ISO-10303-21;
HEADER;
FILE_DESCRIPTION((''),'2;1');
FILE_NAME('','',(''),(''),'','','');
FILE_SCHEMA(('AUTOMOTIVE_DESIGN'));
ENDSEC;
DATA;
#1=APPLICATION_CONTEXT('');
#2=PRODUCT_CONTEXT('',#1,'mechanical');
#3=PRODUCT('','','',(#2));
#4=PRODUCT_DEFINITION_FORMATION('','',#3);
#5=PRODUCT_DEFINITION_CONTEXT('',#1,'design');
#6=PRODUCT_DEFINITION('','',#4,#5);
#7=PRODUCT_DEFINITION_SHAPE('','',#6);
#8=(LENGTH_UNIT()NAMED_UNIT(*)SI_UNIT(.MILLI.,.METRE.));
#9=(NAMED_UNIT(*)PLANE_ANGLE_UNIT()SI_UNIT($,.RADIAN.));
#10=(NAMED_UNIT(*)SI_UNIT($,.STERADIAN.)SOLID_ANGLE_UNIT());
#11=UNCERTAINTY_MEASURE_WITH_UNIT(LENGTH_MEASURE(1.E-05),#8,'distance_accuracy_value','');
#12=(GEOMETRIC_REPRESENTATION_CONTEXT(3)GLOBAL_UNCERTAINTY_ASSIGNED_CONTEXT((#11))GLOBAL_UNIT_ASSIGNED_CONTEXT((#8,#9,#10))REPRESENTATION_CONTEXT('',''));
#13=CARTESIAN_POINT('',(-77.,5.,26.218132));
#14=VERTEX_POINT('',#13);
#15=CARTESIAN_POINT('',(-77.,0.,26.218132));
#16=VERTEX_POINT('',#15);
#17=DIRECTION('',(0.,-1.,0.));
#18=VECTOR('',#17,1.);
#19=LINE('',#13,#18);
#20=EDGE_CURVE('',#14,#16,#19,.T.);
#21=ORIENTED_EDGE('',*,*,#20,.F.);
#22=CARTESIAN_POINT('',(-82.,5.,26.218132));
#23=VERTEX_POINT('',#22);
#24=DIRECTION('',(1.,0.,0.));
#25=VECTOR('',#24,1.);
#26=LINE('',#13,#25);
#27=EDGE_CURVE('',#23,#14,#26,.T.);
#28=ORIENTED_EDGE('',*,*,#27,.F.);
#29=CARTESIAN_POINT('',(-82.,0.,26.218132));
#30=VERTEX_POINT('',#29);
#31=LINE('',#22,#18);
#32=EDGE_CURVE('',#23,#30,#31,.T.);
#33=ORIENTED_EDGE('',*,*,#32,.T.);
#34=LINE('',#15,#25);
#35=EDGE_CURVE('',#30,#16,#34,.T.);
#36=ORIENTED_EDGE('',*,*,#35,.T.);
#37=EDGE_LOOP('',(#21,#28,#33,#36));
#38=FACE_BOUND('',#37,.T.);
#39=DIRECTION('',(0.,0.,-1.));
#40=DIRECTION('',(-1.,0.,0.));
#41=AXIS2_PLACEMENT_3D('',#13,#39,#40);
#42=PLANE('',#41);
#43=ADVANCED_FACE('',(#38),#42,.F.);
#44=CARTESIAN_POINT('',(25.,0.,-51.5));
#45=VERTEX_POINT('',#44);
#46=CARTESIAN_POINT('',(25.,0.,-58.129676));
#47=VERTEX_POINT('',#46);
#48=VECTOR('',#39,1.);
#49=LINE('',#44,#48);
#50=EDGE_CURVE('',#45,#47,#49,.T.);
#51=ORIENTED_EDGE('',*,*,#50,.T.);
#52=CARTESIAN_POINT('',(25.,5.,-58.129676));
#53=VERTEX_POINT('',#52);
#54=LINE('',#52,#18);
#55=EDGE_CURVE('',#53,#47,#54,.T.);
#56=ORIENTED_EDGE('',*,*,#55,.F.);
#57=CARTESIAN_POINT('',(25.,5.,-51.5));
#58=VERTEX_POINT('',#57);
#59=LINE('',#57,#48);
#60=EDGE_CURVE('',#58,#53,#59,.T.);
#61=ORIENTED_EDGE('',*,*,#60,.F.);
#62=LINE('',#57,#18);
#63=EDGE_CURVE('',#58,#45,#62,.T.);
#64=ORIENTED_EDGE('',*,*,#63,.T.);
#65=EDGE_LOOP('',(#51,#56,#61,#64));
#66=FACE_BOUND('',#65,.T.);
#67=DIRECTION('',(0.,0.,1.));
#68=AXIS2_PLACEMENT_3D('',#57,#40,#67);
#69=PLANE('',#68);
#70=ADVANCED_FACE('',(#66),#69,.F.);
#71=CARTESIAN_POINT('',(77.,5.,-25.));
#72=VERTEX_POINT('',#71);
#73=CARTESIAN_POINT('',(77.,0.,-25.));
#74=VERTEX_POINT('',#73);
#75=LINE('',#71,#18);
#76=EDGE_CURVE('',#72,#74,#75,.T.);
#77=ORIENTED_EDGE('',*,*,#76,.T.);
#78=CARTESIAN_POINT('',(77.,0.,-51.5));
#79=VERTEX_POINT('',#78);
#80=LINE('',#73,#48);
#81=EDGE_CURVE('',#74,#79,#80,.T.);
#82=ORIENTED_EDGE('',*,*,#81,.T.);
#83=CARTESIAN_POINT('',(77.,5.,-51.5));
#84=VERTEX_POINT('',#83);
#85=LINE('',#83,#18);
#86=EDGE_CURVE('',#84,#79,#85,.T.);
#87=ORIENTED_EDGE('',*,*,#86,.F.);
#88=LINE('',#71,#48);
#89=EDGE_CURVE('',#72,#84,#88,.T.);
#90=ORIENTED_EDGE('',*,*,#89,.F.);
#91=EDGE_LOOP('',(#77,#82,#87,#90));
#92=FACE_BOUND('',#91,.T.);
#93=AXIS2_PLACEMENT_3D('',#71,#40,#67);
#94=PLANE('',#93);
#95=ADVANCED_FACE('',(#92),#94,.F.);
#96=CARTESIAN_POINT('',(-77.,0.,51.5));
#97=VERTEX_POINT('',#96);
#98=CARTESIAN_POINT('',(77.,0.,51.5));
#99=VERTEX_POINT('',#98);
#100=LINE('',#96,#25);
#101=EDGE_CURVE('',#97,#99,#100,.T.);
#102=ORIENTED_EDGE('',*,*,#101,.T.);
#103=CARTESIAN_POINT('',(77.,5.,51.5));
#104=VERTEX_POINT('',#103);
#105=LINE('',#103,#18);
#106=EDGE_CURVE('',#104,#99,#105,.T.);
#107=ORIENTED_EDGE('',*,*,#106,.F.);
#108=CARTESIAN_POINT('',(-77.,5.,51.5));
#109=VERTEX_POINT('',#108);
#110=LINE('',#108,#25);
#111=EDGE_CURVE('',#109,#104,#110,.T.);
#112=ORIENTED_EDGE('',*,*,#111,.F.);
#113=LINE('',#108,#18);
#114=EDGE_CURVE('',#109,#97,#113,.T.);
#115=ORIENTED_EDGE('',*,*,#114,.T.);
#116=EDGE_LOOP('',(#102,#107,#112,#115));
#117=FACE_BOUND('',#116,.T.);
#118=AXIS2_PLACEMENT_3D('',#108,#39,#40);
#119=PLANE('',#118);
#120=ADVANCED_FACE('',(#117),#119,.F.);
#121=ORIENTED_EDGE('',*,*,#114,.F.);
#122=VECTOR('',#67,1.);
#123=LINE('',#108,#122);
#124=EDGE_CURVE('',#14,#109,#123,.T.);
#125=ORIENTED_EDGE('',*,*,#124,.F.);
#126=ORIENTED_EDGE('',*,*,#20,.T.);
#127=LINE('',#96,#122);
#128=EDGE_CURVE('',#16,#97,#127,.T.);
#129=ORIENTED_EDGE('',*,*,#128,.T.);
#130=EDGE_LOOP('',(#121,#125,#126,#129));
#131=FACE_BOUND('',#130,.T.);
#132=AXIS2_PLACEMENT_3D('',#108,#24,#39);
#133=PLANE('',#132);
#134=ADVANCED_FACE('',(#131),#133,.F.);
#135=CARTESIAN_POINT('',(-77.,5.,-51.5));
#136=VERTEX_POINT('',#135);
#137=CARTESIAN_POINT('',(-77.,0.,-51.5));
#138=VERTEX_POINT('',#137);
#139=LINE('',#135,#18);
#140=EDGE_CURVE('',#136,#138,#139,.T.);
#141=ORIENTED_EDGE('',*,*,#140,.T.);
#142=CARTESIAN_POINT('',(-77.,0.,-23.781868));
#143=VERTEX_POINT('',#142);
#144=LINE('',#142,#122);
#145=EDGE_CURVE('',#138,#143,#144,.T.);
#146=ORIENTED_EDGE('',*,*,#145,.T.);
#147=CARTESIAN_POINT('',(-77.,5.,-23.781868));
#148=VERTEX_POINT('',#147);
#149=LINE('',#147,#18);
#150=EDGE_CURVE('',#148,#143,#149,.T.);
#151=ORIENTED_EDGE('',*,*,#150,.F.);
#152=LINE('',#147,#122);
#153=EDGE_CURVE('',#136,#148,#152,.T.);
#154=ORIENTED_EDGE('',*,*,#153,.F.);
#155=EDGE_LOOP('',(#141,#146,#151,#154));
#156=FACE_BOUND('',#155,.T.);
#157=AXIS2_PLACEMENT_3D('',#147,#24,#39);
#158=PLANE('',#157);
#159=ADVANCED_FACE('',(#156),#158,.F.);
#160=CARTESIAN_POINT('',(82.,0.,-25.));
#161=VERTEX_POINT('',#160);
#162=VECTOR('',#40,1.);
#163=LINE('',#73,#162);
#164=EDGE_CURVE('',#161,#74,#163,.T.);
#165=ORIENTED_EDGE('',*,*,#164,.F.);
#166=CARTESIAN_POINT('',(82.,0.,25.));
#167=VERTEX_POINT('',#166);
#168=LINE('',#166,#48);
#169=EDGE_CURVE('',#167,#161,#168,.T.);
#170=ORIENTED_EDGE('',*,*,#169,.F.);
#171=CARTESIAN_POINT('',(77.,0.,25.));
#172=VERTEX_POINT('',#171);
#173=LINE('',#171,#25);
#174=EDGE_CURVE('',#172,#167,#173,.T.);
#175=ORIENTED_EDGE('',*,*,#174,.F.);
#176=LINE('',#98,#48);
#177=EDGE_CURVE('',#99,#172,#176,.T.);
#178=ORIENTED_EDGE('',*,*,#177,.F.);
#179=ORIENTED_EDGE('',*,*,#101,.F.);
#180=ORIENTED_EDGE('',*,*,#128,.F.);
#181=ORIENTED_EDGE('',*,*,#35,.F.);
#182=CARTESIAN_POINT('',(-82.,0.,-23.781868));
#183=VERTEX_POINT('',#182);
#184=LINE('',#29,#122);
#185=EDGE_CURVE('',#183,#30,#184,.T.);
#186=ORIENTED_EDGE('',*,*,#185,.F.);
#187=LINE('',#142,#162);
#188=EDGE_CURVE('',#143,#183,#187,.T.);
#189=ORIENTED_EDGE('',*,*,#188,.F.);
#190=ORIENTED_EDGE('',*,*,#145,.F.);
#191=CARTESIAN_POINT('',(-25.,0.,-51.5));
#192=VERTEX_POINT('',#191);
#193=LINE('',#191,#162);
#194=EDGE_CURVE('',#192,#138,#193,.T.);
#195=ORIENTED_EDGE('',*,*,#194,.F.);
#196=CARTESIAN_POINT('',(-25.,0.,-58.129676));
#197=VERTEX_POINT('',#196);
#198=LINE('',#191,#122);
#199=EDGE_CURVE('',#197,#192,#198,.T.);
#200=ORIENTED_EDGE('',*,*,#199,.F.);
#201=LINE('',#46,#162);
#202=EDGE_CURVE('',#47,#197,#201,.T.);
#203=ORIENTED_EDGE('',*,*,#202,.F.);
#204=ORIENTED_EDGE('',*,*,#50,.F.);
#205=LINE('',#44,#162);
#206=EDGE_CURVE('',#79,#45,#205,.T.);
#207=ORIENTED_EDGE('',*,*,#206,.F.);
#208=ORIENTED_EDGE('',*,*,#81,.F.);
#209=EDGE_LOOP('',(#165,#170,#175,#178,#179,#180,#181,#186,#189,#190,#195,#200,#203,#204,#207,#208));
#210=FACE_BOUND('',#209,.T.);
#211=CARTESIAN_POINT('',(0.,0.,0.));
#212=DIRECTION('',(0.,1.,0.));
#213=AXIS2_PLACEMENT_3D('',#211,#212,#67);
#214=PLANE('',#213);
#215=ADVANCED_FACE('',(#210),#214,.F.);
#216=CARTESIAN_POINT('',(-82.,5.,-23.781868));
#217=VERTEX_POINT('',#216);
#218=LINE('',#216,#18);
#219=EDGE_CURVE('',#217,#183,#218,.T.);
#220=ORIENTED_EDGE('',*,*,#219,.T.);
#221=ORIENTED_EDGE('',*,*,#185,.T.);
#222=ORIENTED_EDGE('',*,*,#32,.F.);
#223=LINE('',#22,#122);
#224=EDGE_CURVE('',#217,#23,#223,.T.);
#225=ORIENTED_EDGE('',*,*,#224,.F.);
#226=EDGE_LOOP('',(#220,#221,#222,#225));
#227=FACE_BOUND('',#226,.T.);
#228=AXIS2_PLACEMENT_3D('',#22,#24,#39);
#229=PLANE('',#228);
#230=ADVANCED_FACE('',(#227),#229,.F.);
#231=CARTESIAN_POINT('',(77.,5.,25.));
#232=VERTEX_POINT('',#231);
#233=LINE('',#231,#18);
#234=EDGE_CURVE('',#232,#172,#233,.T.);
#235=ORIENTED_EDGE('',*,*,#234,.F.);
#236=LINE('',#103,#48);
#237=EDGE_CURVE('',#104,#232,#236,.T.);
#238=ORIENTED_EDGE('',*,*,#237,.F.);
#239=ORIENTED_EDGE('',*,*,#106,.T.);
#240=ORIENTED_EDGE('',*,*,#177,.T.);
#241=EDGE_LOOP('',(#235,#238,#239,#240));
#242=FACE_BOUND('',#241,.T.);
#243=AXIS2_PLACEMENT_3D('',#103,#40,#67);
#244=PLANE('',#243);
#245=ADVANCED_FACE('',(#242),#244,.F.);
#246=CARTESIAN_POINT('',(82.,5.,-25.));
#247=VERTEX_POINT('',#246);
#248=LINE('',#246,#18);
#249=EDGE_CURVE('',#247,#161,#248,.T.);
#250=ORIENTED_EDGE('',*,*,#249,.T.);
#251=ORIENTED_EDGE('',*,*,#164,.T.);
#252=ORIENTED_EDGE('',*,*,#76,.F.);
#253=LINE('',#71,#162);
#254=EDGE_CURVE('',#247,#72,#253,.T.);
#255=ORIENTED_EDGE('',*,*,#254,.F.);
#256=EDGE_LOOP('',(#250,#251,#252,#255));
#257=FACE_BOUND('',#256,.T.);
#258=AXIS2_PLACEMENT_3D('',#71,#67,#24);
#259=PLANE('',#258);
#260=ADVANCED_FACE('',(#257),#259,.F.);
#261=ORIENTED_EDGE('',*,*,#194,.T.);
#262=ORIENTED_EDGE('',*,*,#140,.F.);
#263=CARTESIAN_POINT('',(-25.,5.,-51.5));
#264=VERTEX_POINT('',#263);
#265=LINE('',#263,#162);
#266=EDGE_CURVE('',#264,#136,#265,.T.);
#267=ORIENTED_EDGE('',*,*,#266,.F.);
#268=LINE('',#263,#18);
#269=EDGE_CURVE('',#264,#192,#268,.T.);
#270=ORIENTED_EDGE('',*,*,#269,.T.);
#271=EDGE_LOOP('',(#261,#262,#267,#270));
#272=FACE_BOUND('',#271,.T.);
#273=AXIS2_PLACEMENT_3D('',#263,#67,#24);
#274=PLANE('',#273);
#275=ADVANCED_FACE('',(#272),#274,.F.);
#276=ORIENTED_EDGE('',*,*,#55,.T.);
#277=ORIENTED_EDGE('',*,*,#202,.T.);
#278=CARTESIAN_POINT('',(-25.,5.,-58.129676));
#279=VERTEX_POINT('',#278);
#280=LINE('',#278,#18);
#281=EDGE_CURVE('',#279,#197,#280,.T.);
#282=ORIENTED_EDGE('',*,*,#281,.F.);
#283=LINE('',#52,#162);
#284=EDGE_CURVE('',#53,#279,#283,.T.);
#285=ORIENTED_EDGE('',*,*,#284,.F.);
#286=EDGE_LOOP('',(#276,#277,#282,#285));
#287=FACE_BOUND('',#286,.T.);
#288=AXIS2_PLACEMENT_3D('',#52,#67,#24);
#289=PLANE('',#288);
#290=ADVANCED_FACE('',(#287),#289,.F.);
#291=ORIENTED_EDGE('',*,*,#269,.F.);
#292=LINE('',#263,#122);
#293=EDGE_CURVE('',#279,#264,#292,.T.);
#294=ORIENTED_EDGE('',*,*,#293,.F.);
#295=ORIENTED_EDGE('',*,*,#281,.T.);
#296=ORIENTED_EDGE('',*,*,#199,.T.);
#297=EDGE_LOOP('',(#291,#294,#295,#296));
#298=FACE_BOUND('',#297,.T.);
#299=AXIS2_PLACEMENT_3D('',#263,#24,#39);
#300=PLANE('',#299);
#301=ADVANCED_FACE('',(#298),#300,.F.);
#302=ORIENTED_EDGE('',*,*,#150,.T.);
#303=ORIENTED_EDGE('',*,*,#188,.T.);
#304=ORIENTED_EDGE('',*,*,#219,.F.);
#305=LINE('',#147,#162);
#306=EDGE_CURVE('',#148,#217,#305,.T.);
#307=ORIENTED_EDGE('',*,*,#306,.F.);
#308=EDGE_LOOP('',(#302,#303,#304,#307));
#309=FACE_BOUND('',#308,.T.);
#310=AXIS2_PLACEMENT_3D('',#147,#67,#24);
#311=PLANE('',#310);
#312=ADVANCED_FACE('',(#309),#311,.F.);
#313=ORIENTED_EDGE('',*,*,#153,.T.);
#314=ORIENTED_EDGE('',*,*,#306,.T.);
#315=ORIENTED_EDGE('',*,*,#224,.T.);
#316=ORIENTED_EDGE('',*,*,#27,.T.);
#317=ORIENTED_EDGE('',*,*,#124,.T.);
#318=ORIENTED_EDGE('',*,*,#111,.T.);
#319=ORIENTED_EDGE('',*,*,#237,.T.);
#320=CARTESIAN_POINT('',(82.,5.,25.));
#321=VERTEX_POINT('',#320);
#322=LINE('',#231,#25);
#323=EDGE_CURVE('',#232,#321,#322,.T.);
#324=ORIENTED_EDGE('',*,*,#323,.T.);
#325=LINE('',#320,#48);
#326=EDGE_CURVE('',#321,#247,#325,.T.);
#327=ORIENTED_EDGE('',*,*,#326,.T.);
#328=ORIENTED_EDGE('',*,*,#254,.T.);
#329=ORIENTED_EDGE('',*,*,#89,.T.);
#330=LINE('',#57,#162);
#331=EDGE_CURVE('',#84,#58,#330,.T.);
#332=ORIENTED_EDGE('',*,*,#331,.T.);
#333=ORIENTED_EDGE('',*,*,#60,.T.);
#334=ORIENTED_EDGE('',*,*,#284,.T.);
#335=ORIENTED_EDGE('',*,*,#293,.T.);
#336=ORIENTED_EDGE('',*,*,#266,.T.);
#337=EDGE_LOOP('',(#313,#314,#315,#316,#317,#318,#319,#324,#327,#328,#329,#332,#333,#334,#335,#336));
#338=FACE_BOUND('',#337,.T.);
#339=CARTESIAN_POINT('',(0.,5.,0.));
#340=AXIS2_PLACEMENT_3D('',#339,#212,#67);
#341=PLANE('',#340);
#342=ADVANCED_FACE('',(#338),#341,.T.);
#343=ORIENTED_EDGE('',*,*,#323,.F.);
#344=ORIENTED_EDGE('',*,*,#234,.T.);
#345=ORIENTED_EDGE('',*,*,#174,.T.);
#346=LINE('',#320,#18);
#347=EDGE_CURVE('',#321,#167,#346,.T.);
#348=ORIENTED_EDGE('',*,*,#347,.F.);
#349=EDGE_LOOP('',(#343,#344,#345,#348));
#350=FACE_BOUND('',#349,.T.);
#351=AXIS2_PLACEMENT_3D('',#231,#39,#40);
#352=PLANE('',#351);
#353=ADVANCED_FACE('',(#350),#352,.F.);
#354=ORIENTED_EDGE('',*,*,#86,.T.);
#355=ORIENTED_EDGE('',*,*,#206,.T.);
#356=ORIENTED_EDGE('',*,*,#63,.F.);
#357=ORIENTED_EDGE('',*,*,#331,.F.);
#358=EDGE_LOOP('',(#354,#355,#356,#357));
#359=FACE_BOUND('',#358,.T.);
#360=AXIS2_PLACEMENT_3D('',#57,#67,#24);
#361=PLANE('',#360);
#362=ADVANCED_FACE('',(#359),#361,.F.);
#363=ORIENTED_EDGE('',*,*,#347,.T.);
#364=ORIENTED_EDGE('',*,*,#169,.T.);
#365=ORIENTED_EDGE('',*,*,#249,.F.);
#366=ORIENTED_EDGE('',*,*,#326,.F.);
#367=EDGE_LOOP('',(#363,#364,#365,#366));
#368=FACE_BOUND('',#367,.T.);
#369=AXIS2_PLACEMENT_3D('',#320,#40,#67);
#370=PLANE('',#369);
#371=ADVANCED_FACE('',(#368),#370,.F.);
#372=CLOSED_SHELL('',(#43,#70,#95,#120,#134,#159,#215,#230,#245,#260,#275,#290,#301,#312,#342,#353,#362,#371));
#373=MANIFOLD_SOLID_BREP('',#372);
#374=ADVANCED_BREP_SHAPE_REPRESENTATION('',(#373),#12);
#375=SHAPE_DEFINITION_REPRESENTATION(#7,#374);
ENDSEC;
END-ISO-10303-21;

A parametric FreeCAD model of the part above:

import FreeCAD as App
import Part
import Sketcher

V = App.Vector

doc = App.newDocument("Part")
body = doc.addObject("PartDesign::Body", "Body")

# Sketch on XZ plane
sketch1 = body.newObject("Sketcher::SketchObject", "Sketch")
sketch1.AttachmentSupport = (doc.getObject("XZ_Plane"), [""])
sketch1.MapMode = "FlatFace"
sketch1.addGeometry(Part.LineSegment(V(77, 52, 0), V(77, 25, 0)), False)
sketch1.addGeometry(Part.LineSegment(V(77, 25, 0), V(82, 25, 0)), False)
sketch1.addGeometry(Part.LineSegment(V(82, 25, 0), V(82, -25, 0)), False)
sketch1.addGeometry(Part.LineSegment(V(82, -25, 0), V(77, -25, 0)), False)
sketch1.addGeometry(Part.LineSegment(V(77, -25, 0), V(77, -52, 0)), False)
sketch1.addGeometry(Part.LineSegment(V(77, -52, 0), V(25, -52, 0)), False)
sketch1.addGeometry(Part.LineSegment(V(25, -52, 0), V(25, -58, 0)), False)
sketch1.addGeometry(Part.LineSegment(V(25, -58, 0), V(-25, -58, 0)), False)
sketch1.addGeometry(Part.LineSegment(V(-25, -58, 0), V(-25, -52, 0)), False)
sketch1.addGeometry(Part.LineSegment(V(-25, -52, 0), V(-77, -52, 0)), False)
sketch1.addGeometry(Part.LineSegment(V(-77, -52, 0), V(-77, -24, 0)), False)
sketch1.addGeometry(Part.LineSegment(V(-77, -24, 0), V(-82, -24, 0)), False)
sketch1.addGeometry(Part.LineSegment(V(-82, -24, 0), V(-82, 26, 0)), False)
sketch1.addGeometry(Part.LineSegment(V(-82, 26, 0), V(-77, 26, 0)), False)
sketch1.addGeometry(Part.LineSegment(V(-77, 26, 0), V(-77, 52, 0)), False)
sketch1.addGeometry(Part.LineSegment(V(-77, 52, 0), V(77, 52, 0)), False)
sketch1.addConstraint(Sketcher.Constraint("Coincident", 0, 2, 1, 1))
sketch1.addConstraint(Sketcher.Constraint("Coincident", 1, 2, 2, 1))
sketch1.addConstraint(Sketcher.Constraint("Coincident", 2, 2, 3, 1))
sketch1.addConstraint(Sketcher.Constraint("Coincident", 3, 2, 4, 1))
sketch1.addConstraint(Sketcher.Constraint("Coincident", 4, 2, 5, 1))
sketch1.addConstraint(Sketcher.Constraint("Coincident", 5, 2, 6, 1))
sketch1.addConstraint(Sketcher.Constraint("Coincident", 6, 2, 7, 1))
sketch1.addConstraint(Sketcher.Constraint("Coincident", 7, 2, 8, 1))
sketch1.addConstraint(Sketcher.Constraint("Coincident", 8, 2, 9, 1))
sketch1.addConstraint(Sketcher.Constraint("Coincident", 9, 2, 10, 1))
sketch1.addConstraint(Sketcher.Constraint("Coincident", 10, 2, 11, 1))
sketch1.addConstraint(Sketcher.Constraint("Coincident", 11, 2, 12, 1))
sketch1.addConstraint(Sketcher.Constraint("Coincident", 12, 2, 13, 1))
sketch1.addConstraint(Sketcher.Constraint("Coincident", 13, 2, 14, 1))
sketch1.addConstraint(Sketcher.Constraint("Coincident", 14, 2, 15, 1))
sketch1.addConstraint(Sketcher.Constraint("Coincident", 15, 2, 0, 1))
sketch1.addConstraint(Sketcher.Constraint("Vertical", 0))
sketch1.addConstraint(Sketcher.Constraint("Horizontal", 1))
sketch1.addConstraint(Sketcher.Constraint("Vertical", 2))
sketch1.addConstraint(Sketcher.Constraint("Horizontal", 3))
sketch1.addConstraint(Sketcher.Constraint("Vertical", 4))
sketch1.addConstraint(Sketcher.Constraint("Horizontal", 5))
sketch1.addConstraint(Sketcher.Constraint("Vertical", 6))
sketch1.addConstraint(Sketcher.Constraint("Horizontal", 7))
sketch1.addConstraint(Sketcher.Constraint("Vertical", 8))
sketch1.addConstraint(Sketcher.Constraint("Horizontal", 9))
sketch1.addConstraint(Sketcher.Constraint("Vertical", 10))
sketch1.addConstraint(Sketcher.Constraint("Horizontal", 11))
sketch1.addConstraint(Sketcher.Constraint("Vertical", 12))
sketch1.addConstraint(Sketcher.Constraint("Horizontal", 13))
sketch1.addConstraint(Sketcher.Constraint("Vertical", 14))
sketch1.addConstraint(Sketcher.Constraint("Horizontal", 15))
sketch1.addConstraint(Sketcher.Constraint("Symmetric", 4, 2, 14, 2, -1, 1))
sketch1.addConstraint(Sketcher.Constraint("Symmetric", 9, 2, 15, 2, -1, 1))
sketch1.addConstraint(Sketcher.Constraint("Symmetric", 0, 2, 3, 2, -1))
sketch1.addConstraint(Sketcher.Constraint("Equal", 5, 9))
sketch1.addConstraint(Sketcher.Constraint("Equal", 3, 11))
sketch1.addConstraint(Sketcher.Constraint("Equal", 7, 2))
sketch1.addConstraint(Sketcher.Constraint("Equal", 2, 12))
sketch1.addConstraint(Sketcher.Constraint("DistanceX", 1, 1, 1, 2, 5.0))
sketch1.addConstraint(Sketcher.Constraint("DistanceX", 5, 2, 5, 1, 52.0))
sketch1.addConstraint(Sketcher.Constraint("DistanceX", 7, 2, 7, 1, 50.0))
sketch1.addConstraint(Sketcher.Constraint("DistanceY", 0, 2, 0, 1, 26.5))
sketch1.addConstraint(Sketcher.Constraint("DistanceY", 6, 2, 6, 1, 6.629676))
sketch1.addConstraint(Sketcher.Constraint("DistanceY", 10, 1, 10, 2, 27.718132))
pad1 = body.newObject("PartDesign::Pad", "Pad")
pad1.Profile = sketch1
pad1.Length = 5
pad1.Reversed = True

doc.recompute()
